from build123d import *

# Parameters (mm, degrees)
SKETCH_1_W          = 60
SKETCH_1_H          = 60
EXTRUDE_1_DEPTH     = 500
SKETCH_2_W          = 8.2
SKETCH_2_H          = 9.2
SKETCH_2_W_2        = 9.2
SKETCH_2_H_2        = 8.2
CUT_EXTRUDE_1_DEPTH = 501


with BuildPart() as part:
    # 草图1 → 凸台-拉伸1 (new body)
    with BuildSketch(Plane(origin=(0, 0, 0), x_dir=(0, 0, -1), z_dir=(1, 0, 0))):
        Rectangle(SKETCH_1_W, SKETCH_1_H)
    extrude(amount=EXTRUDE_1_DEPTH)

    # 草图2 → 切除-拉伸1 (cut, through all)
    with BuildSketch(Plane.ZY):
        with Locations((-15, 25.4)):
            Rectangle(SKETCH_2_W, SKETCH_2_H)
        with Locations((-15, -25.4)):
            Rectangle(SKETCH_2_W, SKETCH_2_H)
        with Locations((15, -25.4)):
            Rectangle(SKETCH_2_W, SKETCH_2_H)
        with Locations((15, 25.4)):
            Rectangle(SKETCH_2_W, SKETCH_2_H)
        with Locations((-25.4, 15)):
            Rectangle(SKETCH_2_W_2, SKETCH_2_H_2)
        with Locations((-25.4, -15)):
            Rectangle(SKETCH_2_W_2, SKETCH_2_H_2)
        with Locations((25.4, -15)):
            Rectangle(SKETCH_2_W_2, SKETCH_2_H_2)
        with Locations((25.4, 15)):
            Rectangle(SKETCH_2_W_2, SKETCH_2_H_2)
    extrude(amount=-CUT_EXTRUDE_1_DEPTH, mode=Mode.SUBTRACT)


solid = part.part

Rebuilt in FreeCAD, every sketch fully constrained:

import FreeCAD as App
import Part
import Sketcher
Q = App.Units.Quantity

doc = App.newDocument("Part")
body = doc.addObject("PartDesign::Body", "Body")

# Sketch on YZ plane
sketch1 = doc.addObject("Sketcher::SketchObject", "Sketch")
body.addObject(sketch1)
sketch1.AttachmentSupport = (doc.YZ_Plane, [""])
sketch1.MapMode = "FlatFace"
sketch1.addGeometry([
    Part.LineSegment(App.Vector(30, 30, 0), App.Vector(-30, 30, 0)),
    Part.LineSegment(App.Vector(-30, 30, 0), App.Vector(-30, -30, 0)),
    Part.LineSegment(App.Vector(-30, -30, 0), App.Vector(30, -30, 0)),
    Part.LineSegment(App.Vector(30, -30, 0), App.Vector(30, 30, 0)),
], False)
sketch1.addConstraint([
    Sketcher.Constraint("Coincident", 0, 2, 1, 1),
    Sketcher.Constraint("Coincident", 1, 2, 2, 1),
    Sketcher.Constraint("Coincident", 2, 2, 3, 1),
    Sketcher.Constraint("Coincident", 3, 2, 0, 1),
    Sketcher.Constraint("Horizontal", 0),
    Sketcher.Constraint("Vertical", 1),
    Sketcher.Constraint("Horizontal", 2),
    Sketcher.Constraint("Vertical", 3),
    Sketcher.Constraint("Symmetric", 0, 2, 2, 2, -1, 1),
    Sketcher.Constraint("Equal", 2, 1),
    Sketcher.Constraint("DistanceX", 0, 2, 0, 1, Q("60 mm")),
])
pad1 = doc.addObject("PartDesign::Pad", "Pad")
body.addObject(pad1)
pad1.Profile = sketch1
pad1.Length = 500

# Sketch on YZ plane
sketch2 = doc.addObject("Sketcher::SketchObject", "Sketch001")
body.addObject(sketch2)
sketch2.AttachmentSupport = (doc.YZ_Plane, [""])
sketch2.MapMode = "FlatFace"
sketch2.addGeometry([
    Part.LineSegment(App.Vector(30, -19, 0), App.Vector(21, -19, 0)),  # 0
    Part.LineSegment(App.Vector(21, -19, 0), App.Vector(21, -11, 0)),  # 1
    Part.LineSegment(App.Vector(21, -11, 0), App.Vector(30, -11, 0)),  # 2
    Part.LineSegment(App.Vector(30, -11, 0), App.Vector(30, -19, 0)),  # 3
    Part.LineSegment(App.Vector(-21, -19, 0), App.Vector(-30, -19, 0)),  # 4
    Part.LineSegment(App.Vector(-30, -19, 0), App.Vector(-30, -11, 0)),  # 5
    Part.LineSegment(App.Vector(-30, -11, 0), App.Vector(-21, -11, 0)),  # 6
    Part.LineSegment(App.Vector(-21, -11, 0), App.Vector(-21, -19, 0)),  # 7
    Part.LineSegment(App.Vector(-21, 11, 0), App.Vector(-30, 11, 0)),  # 8
    Part.LineSegment(App.Vector(-30, 11, 0), App.Vector(-30, 19, 0)),  # 9
    Part.LineSegment(App.Vector(-30, 19, 0), App.Vector(-21, 19, 0)),  # 10
    Part.LineSegment(App.Vector(-21, 19, 0), App.Vector(-21, 11, 0)),  # 11
    Part.LineSegment(App.Vector(30, 11, 0), App.Vector(21, 11, 0)),  # 12
    Part.LineSegment(App.Vector(21, 11, 0), App.Vector(21, 19, 0)),  # 13
    Part.LineSegment(App.Vector(21, 19, 0), App.Vector(30, 19, 0)),  # 14
    Part.LineSegment(App.Vector(30, 19, 0), App.Vector(30, 11, 0)),  # 15
    Part.LineSegment(App.Vector(19, -30, 0), App.Vector(11, -30, 0)),  # 16
    Part.LineSegment(App.Vector(11, -30, 0), App.Vector(11, -21, 0)),  # 17
    Part.LineSegment(App.Vector(11, -21, 0), App.Vector(19, -21, 0)),  # 18
    Part.LineSegment(App.Vector(19, -21, 0), App.Vector(19, -30, 0)),  # 19
    Part.LineSegment(App.Vector(-11, -30, 0), App.Vector(-19, -30, 0)),  # 20
    Part.LineSegment(App.Vector(-19, -30, 0), App.Vector(-19, -21, 0)),  # 21
    Part.LineSegment(App.Vector(-19, -21, 0), App.Vector(-11, -21, 0)),  # 22
    Part.LineSegment(App.Vector(-11, -21, 0), App.Vector(-11, -30, 0)),  # 23
    Part.LineSegment(App.Vector(-11, 21, 0), App.Vector(-19, 21, 0)),  # 24
    Part.LineSegment(App.Vector(-19, 21, 0), App.Vector(-19, 30, 0)),  # 25
    Part.LineSegment(App.Vector(-19, 30, 0), App.Vector(-11, 30, 0)),  # 26
    Part.LineSegment(App.Vector(-11, 30, 0), App.Vector(-11, 21, 0)),  # 27
    Part.LineSegment(App.Vector(19, 21, 0), App.Vector(11, 21, 0)),  # 28
    Part.LineSegment(App.Vector(11, 21, 0), App.Vector(11, 30, 0)),  # 29
    Part.LineSegment(App.Vector(11, 30, 0), App.Vector(19, 30, 0)),  # 30
    Part.LineSegment(App.Vector(19, 30, 0), App.Vector(19, 21, 0)),  # 31
], False)
sketch2.addConstraint([
    Sketcher.Constraint("Coincident", 0, 2, 1, 1),
    Sketcher.Constraint("Coincident", 1, 2, 2, 1),
    Sketcher.Constraint("Coincident", 2, 2, 3, 1),
    Sketcher.Constraint("Coincident", 3, 2, 0, 1),
    Sketcher.Constraint("Coincident", 4, 2, 5, 1),
    Sketcher.Constraint("Coincident", 5, 2, 6, 1),
    Sketcher.Constraint("Coincident", 6, 2, 7, 1),
    Sketcher.Constraint("Coincident", 7, 2, 4, 1),
    Sketcher.Constraint("Coincident", 8, 2, 9, 1),
    Sketcher.Constraint("Coincident", 9, 2, 10, 1),
    Sketcher.Constraint("Coincident", 10, 2, 11, 1),
    Sketcher.Constraint("Coincident", 11, 2, 8, 1),
    Sketcher.Constraint("Coincident", 12, 2, 13, 1),
    Sketcher.Constraint("Coincident", 13, 2, 14, 1),
    Sketcher.Constraint("Coincident", 14, 2, 15, 1),
    Sketcher.Constraint("Coincident", 15, 2, 12, 1),
    Sketcher.Constraint("Coincident", 16, 2, 17, 1),
    Sketcher.Constraint("Coincident", 17, 2, 18, 1),
    Sketcher.Constraint("Coincident", 18, 2, 19, 1),
    Sketcher.Constraint("Coincident", 19, 2, 16, 1),
    Sketcher.Constraint("Coincident", 20, 2, 21, 1),
    Sketcher.Constraint("Coincident", 21, 2, 22, 1),
    Sketcher.Constraint("Coincident", 22, 2, 23, 1),
    Sketcher.Constraint("Coincident", 23, 2, 20, 1),
    Sketcher.Constraint("Coincident", 24, 2, 25, 1),
    Sketcher.Constraint("Coincident", 25, 2, 26, 1),
    Sketcher.Constraint("Coincident", 26, 2, 27, 1),
    Sketcher.Constraint("Coincident", 27, 2, 24, 1),
    Sketcher.Constraint("Coincident", 28, 2, 29, 1),
    Sketcher.Constraint("Coincident", 29, 2, 30, 1),
    Sketcher.Constraint("Coincident", 30, 2, 31, 1),
    Sketcher.Constraint("Coincident", 31, 2, 28, 1),
    Sketcher.Constraint("Horizontal", 0),
    Sketcher.Constraint("Vertical", 1),
    Sketcher.Constraint("Horizontal", 2),
    Sketcher.Constraint("Vertical", 3),
    Sketcher.Constraint("Horizontal", 4),
    Sketcher.Constraint("Vertical", 5),
    Sketcher.Constraint("Horizontal", 6),
    Sketcher.Constraint("Vertical", 7),
    Sketcher.Constraint("Horizontal", 8),
    Sketcher.Constraint("Vertical", 9),
    Sketcher.Constraint("Horizontal", 10),
    Sketcher.Constraint("Vertical", 11),
    Sketcher.Constraint("Horizontal", 12),
    Sketcher.Constraint("Vertical", 13),
    Sketcher.Constraint("Horizontal", 14),
    Sketcher.Constraint("Vertical", 15),
    Sketcher.Constraint("Horizontal", 16),
    Sketcher.Constraint("Vertical", 17),
    Sketcher.Constraint("Horizontal", 18),
    Sketcher.Constraint("Vertical", 19),
    Sketcher.Constraint("Horizontal", 20),
    Sketcher.Constraint("Vertical", 21),
    Sketcher.Constraint("Horizontal", 22),
    Sketcher.Constraint("Vertical", 23),
    Sketcher.Constraint("Horizontal", 24),
    Sketcher.Constraint("Vertical", 25),
    Sketcher.Constraint("Horizontal", 26),
    Sketcher.Constraint("Vertical", 27),
    Sketcher.Constraint("Horizontal", 28),
    Sketcher.Constraint("Vertical", 29),
    Sketcher.Constraint("Horizontal", 30),
    Sketcher.Constraint("Vertical", 31),
    Sketcher.Constraint("Symmetric", 2, 2, 8, 2, -1, 1),
    Sketcher.Constraint("Symmetric", 0, 2, 10, 2, -1, 1),
    Sketcher.Constraint("Symmetric", 6, 2, 12, 2, -1, 1),
    Sketcher.Constraint("Symmetric", 4, 2, 14, 2, -1, 1),
    Sketcher.Constraint("Symmetric", 18, 2, 24, 2, -1, 1),
    Sketcher.Constraint("Symmetric", 16, 2, 26, 2, -1, 1),
    Sketcher.Constraint("Symmetric", 22, 2, 28, 2, -1, 1),
    Sketcher.Constraint("Symmetric", 20, 2, 30, 2, -1, 1),
    Sketcher.Constraint("Symmetric", 3, 2, 4, 2, -2),
    Sketcher.Constraint("Symmetric", 1, 2, 6, 2, -2),
    Sketcher.Constraint("Symmetric", 19, 2, 20, 2, -2),
    Sketcher.Constraint("Symmetric", 17, 2, 22, 2, -2),
    Sketcher.Constraint("Equal", 30, 1),
    Sketcher.Constraint("Equal", 14, 17),
    Sketcher.Constraint("DistanceX", 0, 2, 0, 1, Q("9.2 mm")),
    Sketcher.Constraint("DistanceX", 16, 2, 16, 1, Q("8.2 mm")),
    Sketcher.Constraint("DistanceX", -1, 1, 2, 2, Q("30 mm")),
    Sketcher.Constraint("DistanceY", 16, 2, -1, 1, Q("30 mm")),
    Sketcher.Constraint("DistanceY", 4, 2, 8, 2, Q("30 mm")),
    Sketcher.Constraint("DistanceX", 20, 2, 16, 2, Q("30 mm")),
])
pocket1 = doc.addObject("PartDesign::Pocket", "Pocket")
body.addObject(pocket1)
pocket1.Profile = sketch2
pocket1.Type = "ThroughAll"
pocket1.Reversed = True

doc.recompute()
